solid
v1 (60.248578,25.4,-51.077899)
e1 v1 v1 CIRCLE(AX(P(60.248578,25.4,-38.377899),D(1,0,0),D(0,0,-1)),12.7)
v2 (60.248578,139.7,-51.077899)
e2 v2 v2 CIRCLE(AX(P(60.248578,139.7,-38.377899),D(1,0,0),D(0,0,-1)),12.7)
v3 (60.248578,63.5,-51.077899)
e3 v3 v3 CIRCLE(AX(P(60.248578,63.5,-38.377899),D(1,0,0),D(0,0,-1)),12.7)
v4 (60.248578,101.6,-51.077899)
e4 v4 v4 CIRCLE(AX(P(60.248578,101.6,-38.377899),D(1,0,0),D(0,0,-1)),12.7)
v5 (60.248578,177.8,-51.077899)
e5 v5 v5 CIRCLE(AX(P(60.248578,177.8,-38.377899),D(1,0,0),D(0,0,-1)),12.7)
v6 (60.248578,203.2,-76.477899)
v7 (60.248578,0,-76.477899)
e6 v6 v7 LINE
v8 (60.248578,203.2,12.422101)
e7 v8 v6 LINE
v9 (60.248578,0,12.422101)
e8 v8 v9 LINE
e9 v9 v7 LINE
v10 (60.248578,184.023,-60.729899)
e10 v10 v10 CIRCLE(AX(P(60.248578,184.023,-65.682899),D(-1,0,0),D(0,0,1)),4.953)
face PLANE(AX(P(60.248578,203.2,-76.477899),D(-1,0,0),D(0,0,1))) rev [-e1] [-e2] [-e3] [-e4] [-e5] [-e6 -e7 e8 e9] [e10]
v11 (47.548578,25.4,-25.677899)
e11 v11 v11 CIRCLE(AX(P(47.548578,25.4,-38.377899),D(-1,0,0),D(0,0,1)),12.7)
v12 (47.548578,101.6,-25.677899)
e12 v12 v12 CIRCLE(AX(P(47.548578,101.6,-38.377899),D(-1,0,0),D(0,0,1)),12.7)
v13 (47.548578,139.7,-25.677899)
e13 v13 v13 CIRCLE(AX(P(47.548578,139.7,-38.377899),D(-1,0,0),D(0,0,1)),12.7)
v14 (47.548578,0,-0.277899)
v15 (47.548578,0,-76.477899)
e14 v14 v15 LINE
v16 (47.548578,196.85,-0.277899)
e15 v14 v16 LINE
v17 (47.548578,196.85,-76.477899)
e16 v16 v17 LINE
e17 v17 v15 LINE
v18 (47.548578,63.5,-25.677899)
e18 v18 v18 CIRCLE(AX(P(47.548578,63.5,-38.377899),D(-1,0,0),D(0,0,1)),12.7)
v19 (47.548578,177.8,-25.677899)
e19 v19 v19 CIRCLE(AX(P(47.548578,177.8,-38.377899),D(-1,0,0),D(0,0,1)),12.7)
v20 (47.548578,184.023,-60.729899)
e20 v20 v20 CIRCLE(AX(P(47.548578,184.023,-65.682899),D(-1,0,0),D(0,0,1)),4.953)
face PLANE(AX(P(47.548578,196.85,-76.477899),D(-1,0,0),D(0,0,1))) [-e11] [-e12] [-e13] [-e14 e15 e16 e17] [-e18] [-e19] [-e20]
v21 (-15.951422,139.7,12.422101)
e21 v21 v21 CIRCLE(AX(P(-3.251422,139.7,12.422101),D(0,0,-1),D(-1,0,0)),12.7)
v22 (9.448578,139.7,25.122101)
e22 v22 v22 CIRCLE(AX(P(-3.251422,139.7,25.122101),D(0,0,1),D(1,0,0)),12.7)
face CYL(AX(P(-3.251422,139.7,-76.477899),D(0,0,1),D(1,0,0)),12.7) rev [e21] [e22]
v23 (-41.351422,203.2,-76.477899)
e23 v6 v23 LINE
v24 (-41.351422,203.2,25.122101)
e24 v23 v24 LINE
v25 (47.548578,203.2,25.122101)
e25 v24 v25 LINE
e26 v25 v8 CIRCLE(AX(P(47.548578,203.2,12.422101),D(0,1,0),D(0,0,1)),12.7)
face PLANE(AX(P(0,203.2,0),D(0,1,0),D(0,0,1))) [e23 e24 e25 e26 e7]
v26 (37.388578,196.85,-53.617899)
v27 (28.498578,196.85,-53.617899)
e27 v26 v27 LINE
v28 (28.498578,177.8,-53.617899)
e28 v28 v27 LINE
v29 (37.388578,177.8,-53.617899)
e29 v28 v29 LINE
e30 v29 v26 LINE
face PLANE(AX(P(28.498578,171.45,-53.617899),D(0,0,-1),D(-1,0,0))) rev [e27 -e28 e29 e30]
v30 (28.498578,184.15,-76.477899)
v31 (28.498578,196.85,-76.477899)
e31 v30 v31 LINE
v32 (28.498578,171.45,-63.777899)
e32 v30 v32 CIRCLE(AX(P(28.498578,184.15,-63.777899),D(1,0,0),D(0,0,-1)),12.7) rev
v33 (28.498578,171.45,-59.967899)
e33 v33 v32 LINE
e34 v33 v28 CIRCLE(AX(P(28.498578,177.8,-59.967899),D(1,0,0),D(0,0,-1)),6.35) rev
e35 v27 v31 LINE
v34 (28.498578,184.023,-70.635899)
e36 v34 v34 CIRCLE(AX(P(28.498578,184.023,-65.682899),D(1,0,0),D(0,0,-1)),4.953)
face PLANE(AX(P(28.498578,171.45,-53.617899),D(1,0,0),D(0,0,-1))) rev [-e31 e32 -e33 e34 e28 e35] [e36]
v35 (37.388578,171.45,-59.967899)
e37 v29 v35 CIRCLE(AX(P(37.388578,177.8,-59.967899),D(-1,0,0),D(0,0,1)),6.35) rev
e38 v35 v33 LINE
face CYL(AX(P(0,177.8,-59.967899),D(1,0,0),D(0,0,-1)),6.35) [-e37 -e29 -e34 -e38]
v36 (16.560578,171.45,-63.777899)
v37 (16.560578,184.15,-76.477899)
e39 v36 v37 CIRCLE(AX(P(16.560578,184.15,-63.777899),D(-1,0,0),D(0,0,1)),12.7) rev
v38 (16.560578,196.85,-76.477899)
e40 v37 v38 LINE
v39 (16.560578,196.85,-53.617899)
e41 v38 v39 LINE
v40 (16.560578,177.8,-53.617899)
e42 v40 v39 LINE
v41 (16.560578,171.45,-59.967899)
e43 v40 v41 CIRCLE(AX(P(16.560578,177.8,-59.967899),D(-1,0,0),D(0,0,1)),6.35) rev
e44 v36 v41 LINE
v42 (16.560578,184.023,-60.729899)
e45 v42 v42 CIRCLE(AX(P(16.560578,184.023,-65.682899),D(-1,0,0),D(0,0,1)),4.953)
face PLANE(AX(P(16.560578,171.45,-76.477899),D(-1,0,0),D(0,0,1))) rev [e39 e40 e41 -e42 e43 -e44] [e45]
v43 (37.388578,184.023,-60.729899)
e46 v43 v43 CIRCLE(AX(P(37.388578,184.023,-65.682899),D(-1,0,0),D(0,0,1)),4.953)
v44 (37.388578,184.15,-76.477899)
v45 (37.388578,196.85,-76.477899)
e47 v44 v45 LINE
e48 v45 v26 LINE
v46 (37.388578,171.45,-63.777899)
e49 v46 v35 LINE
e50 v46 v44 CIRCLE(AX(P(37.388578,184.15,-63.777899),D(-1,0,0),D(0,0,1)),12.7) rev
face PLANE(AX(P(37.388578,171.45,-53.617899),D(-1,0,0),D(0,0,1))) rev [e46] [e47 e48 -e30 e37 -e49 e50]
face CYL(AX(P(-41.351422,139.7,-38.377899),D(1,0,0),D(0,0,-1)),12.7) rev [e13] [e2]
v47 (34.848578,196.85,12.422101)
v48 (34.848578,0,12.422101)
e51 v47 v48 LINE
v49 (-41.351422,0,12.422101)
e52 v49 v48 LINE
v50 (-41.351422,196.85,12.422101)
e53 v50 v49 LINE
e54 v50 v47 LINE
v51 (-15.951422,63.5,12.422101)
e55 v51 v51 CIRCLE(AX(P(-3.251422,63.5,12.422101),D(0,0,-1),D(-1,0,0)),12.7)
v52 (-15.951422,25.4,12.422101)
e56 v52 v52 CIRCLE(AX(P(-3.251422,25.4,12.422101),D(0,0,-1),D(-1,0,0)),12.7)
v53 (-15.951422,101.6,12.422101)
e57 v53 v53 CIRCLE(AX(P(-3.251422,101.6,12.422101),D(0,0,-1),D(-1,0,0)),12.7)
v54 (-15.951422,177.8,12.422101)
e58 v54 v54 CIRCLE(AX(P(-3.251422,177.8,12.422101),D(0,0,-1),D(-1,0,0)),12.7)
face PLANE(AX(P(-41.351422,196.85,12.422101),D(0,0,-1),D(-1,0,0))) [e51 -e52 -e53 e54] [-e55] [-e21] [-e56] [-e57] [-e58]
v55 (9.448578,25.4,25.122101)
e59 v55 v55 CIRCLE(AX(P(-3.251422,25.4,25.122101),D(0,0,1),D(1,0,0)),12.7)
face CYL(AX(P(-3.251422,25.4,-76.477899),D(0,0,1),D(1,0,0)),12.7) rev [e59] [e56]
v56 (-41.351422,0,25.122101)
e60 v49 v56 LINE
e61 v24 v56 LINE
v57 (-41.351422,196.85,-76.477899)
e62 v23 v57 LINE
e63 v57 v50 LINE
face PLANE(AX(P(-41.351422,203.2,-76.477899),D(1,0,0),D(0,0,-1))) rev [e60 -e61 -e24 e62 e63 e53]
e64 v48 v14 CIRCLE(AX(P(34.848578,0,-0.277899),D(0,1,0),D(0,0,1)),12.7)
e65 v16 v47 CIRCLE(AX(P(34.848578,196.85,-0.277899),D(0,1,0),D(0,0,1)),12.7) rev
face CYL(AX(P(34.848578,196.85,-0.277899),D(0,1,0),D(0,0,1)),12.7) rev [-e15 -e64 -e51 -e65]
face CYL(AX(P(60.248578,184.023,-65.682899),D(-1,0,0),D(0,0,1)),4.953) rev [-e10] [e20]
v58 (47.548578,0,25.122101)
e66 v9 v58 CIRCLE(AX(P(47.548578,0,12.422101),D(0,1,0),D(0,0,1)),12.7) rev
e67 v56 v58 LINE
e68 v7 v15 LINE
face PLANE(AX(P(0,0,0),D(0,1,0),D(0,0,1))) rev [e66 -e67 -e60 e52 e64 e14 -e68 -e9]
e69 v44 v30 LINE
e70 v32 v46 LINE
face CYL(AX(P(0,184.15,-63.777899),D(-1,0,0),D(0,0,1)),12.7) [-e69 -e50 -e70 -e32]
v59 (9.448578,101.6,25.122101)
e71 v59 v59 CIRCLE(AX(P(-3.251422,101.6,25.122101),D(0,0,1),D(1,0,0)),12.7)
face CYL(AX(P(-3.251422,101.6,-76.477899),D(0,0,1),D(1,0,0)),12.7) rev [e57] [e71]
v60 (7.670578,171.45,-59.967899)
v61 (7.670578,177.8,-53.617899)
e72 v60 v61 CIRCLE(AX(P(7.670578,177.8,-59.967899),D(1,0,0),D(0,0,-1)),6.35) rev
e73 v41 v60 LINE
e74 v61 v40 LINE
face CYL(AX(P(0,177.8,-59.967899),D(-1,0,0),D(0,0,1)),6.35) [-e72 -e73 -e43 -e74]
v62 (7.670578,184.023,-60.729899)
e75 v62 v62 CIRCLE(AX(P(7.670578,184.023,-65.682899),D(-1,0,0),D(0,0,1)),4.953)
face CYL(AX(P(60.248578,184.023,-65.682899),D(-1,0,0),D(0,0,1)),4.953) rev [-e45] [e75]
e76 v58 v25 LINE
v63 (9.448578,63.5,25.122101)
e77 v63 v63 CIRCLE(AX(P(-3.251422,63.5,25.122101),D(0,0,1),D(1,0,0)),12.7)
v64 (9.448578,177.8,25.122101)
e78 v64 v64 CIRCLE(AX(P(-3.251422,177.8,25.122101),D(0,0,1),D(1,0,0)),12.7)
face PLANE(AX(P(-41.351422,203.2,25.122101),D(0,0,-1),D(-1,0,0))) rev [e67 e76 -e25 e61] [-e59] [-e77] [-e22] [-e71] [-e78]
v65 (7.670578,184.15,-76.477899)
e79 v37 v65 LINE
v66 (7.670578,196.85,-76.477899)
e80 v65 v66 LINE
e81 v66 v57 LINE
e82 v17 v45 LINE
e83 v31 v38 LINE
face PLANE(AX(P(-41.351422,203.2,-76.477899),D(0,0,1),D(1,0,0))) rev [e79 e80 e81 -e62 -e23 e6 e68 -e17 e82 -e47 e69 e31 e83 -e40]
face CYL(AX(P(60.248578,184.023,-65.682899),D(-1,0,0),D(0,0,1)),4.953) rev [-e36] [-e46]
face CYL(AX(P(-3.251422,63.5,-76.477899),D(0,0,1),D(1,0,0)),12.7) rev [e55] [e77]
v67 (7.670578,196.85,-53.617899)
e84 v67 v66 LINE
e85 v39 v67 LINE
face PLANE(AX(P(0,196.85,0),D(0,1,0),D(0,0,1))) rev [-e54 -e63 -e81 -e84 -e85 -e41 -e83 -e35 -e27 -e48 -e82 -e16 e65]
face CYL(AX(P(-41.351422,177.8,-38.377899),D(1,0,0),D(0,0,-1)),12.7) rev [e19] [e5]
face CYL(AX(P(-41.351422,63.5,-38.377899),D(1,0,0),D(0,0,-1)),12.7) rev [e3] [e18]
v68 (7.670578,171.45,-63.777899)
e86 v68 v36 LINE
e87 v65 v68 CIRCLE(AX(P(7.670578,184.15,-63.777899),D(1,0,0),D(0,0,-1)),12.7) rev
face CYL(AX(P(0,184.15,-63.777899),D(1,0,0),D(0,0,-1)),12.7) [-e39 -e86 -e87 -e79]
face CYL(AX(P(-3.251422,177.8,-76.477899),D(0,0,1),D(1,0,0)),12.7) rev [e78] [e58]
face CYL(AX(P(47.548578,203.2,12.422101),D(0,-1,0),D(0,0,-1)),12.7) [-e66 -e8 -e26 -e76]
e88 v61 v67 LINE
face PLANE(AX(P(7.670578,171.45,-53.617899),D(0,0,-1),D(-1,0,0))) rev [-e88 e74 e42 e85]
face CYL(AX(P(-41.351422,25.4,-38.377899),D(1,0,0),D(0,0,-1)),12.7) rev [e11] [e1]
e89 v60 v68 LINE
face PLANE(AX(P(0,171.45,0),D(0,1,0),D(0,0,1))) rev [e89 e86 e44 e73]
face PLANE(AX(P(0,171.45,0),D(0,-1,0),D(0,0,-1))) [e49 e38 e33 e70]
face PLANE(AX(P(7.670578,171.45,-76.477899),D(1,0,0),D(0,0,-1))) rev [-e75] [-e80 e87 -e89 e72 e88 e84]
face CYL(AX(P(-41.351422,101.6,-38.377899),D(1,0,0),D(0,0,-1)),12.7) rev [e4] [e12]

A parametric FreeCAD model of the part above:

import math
import FreeCAD as App
import Part
import Sketcher
from FreeCAD import Vector
Q = App.Units.Quantity


def edges_at(feature, points):
    """Names of the edges that pass closest to the given points."""
    edges = feature.Shape.Edges
    near = lambda p: min(range(len(edges)), key=lambda i: edges[i].distToShape(Part.Vertex(*p))[0])
    return sorted({f"Edge{near(p) + 1}" for p in points})

doc = App.newDocument("Part")
body = doc.addObject("PartDesign::Body", "Body")

# Sketch on XZ plane
sketch1 = body.newObject("Sketcher::SketchObject", "Sketch")
sketch1.AttachmentSupport = (doc.getObject("XZ_Plane"), [""])
sketch1.MapMode = "FlatFace"
sketch1.addGeometry(Part.LineSegment(Vector(-41, -76, 0), Vector(-41, 25, 0)), False)
sketch1.addGeometry(Part.LineSegment(Vector(-41, 25, 0), Vector(60, 25, 0)), False)
sketch1.addGeometry(Part.LineSegment(Vector(60, 25, 0), Vector(60, -76, 0)), False)
sketch1.addGeometry(Part.LineSegment(Vector(60, -76, 0), Vector(-41, -76, 0)), False)
sketch1.addConstraint(Sketcher.Constraint("Coincident", 0, 2, 1, 1))
sketch1.addConstraint(Sketcher.Constraint("Coincident", 1, 2, 2, 1))
sketch1.addConstraint(Sketcher.Constraint("Coincident", 2, 2, 3, 1))
sketch1.addConstraint(Sketcher.Constraint("Coincident", 3, 2, 0, 1))
sketch1.addConstraint(Sketcher.Constraint("Vertical", 0))
sketch1.addConstraint(Sketcher.Constraint("Horizontal", 1))
sketch1.addConstraint(Sketcher.Constraint("Vertical", 2))
sketch1.addConstraint(Sketcher.Constraint("Horizontal", 3))
sketch1.addConstraint(Sketcher.Constraint("Equal", 3, 0))
sketch1.addConstraint(Sketcher.Constraint("DistanceX", 1, 1, 1, 2, Q("4 in")))
sketch1.addConstraint(Sketcher.Constraint("DistanceY", -1, 1, 0, 2, Q("25.122101 mm")))
sketch1.addConstraint(Sketcher.Constraint("DistanceX", 0, 2, -1, 1, Q("41.351422 mm")))
pad1 = body.newObject("PartDesign::Pad", "Pad")
pad1.Profile = sketch1
pad1.Length = Q("8 in")
pad1.Reversed = True

# Sketch on XZ plane
sketch2 = body.newObject("Sketcher::SketchObject", "Sketch001")
sketch2.AttachmentSupport = (doc.getObject("XZ_Plane"), [""])
sketch2.MapMode = "FlatFace"
sketch2.AttachmentOffset = App.Placement(Vector(0, 0, -4 * 25.4), App.Rotation())
sketch2.addGeometry(Part.LineSegment(Vector(-41, -76, 0), Vector(-41, 12, 0)), False)
sketch2.addGeometry(Part.LineSegment(Vector(-41, 12, 0), Vector(48, 12, 0)), False)
sketch2.addGeometry(Part.LineSegment(Vector(48, 12, 0), Vector(48, -76, 0)), False)
sketch2.addGeometry(Part.LineSegment(Vector(48, -76, 0), Vector(-41, -76, 0)), False)
sketch2.addConstraint(Sketcher.Constraint("Coincident", 0, 2, 1, 1))
sketch2.addConstraint(Sketcher.Constraint("Coincident", 1, 2, 2, 1))
sketch2.addConstraint(Sketcher.Constraint("Coincident", 2, 2, 3, 1))
sketch2.addConstraint(Sketcher.Constraint("Coincident", 3, 2, 0, 1))
sketch2.addConstraint(Sketcher.Constraint("Vertical", 0))
sketch2.addConstraint(Sketcher.Constraint("Horizontal", 1))
sketch2.addConstraint(Sketcher.Constraint("Vertical", 2))
sketch2.addConstraint(Sketcher.Constraint("Horizontal", 3))
sketch2.addConstraint(Sketcher.Constraint("Equal", 3, 0))
sketch2.addConstraint(Sketcher.Constraint("DistanceX", 1, 1, 1, 2, Q("3.5 in")))
sketch2.addConstraint(Sketcher.Constraint("DistanceY", -1, 1, 0, 2, Q("12.422101 mm")))
sketch2.addConstraint(Sketcher.Constraint("DistanceX", 0, 2, -1, 1, Q("41.351422 mm")))
pocket1 = body.newObject("PartDesign::Pocket", "Pocket")
pocket1.Profile = sketch2
pocket1.Length = Q("7.5 in")
pocket1.Midplane = True
doc.recompute()

fillet = body.newObject("PartDesign::Fillet", "Fillet")
fillet.Base = (pocket1, edges_at(pocket1, [(47.549, 101.6, 12.422), (60.249, 101.6, 25.122)]))
fillet.Radius = Q("0.5 in")

# Sketch on XY plane
sketch3 = body.newObject("Sketcher::SketchObject", "Sketch002")
sketch3.AttachmentSupport = (doc.getObject("XY_Plane"), [""])
sketch3.MapMode = "FlatFace"
sketch3.AttachmentOffset = App.Placement(Vector(0, 0, 25.122101), App.Rotation())
sketch3.addGeometry(Part.Circle(Vector(-3, 178, 0), Vector(0, 0, 1), 13), False)
sketch3.addGeometry(Part.Circle(Vector(-3, 140, 0), Vector(0, 0, 1), 13), False)
sketch3.addGeometry(Part.Circle(Vector(-3, 102, 0), Vector(0, 0, 1), 13), False)
sketch3.addGeometry(Part.Circle(Vector(-3, 64, 0), Vector(0, 0, 1), 13), False)
sketch3.addGeometry(Part.Circle(Vector(-3, 25, 0), Vector(0, 0, 1), 13), False)
sketch3.addConstraint(Sketcher.Constraint("Equal", 0, 1))
sketch3.addConstraint(Sketcher.Constraint("Equal", 1, 2))
sketch3.addConstraint(Sketcher.Constraint("Equal", 2, 3))
sketch3.addConstraint(Sketcher.Constraint("Equal", 3, 4))
sketch3.addConstraint(Sketcher.Constraint("Vertical", 0, 3, 1, 3))
sketch3.addConstraint(Sketcher.Constraint("Vertical", 1, 3, 2, 3))
sketch3.addConstraint(Sketcher.Constraint("Vertical", 2, 3, 3, 3))
sketch3.addConstraint(Sketcher.Constraint("Vertical", 3, 3, 4, 3))
sketch3.addConstraint(Sketcher.Constraint("Diameter", 0, Q("1 in")))
sketch3.addConstraint(Sketcher.Constraint("DistanceY", -1, 1, 0, 3, Q("7 in")))
sketch3.addConstraint(Sketcher.Constraint("DistanceY", -1, 1, 2, 3, Q("4 in")))
sketch3.addConstraint(Sketcher.Constraint("DistanceY", -1, 1, 4, 3, Q("1 in")))
sketch3.addConstraint(Sketcher.Constraint("DistanceY", 3, 3, 1, 3, Q("3 in")))
sketch3.addConstraint(Sketcher.Constraint("DistanceY", -1, 1, 1, 3, Q("5.5 in")))
sketch3.addConstraint(Sketcher.Constraint("DistanceX", 0, 3, -1, 1, Q("3.251422 mm")))
pocket2 = body.newObject("PartDesign::Pocket", "Pocket001")
pocket2.Profile = sketch3
pocket2.Type = "ThroughAll"

# Sketch on YZ plane
sketch4 = body.newObject("Sketcher::SketchObject", "Sketch003")
sketch4.AttachmentSupport = (doc.getObject("YZ_Plane"), [""])
sketch4.MapMode = "FlatFace"
sketch4.AttachmentOffset = App.Placement(Vector(0, 0, 60.248578), App.Rotation())
sketch4.addGeometry(Part.Circle(Vector(178, -38, 0), Vector(0, 0, 1), 13), False)
sketch4.addGeometry(Part.Circle(Vector(140, -38, 0), Vector(0, 0, 1), 13), False)
sketch4.addGeometry(Part.Circle(Vector(102, -38, 0), Vector(0, 0, 1), 13), False)
sketch4.addGeometry(Part.Circle(Vector(64, -38, 0), Vector(0, 0, 1), 13), False)
sketch4.addGeometry(Part.Circle(Vector(25, -38, 0), Vector(0, 0, 1), 13), False)
sketch4.addConstraint(Sketcher.Constraint("Equal", 0, 1))
sketch4.addConstraint(Sketcher.Constraint("Equal", 1, 2))
sketch4.addConstraint(Sketcher.Constraint("Equal", 2, 3))
sketch4.addConstraint(Sketcher.Constraint("Equal", 3, 4))
sketch4.addConstraint(Sketcher.Constraint("Horizontal", 0, 3, 1, 3))
sketch4.addConstraint(Sketcher.Constraint("Horizontal", 1, 3, 2, 3))
sketch4.addConstraint(Sketcher.Constraint("Horizontal", 2, 3, 3, 3))
sketch4.addConstraint(Sketcher.Constraint("Horizontal", 3, 3, 4, 3))
sketch4.addConstraint(Sketcher.Constraint("Diameter", 0, Q("1 in")))
sketch4.addConstraint(Sketcher.Constraint("DistanceX", -1, 1, 0, 3, Q("7 in")))
sketch4.addConstraint(Sketcher.Constraint("DistanceX", -1, 1, 2, 3, Q("4 in")))
sketch4.addConstraint(Sketcher.Constraint("DistanceX", -1, 1, 4, 3, Q("1 in")))
sketch4.addConstraint(Sketcher.Constraint("DistanceX", 3, 3, 1, 3, Q("3 in")))
sketch4.addConstraint(Sketcher.Constraint("DistanceX", -1, 1, 1, 3, Q("5.5 in")))
sketch4.addConstraint(Sketcher.Constraint("DistanceY", 0, 3, -1, 1, Q("38.377899 mm")))
pocket3 = body.newObject("PartDesign::Pocket", "Pocket002")
pocket3.Profile = sketch4
pocket3.Type = "ThroughAll"

# Sketch on XZ plane
sketch5 = body.newObject("Sketcher::SketchObject", "Sketch004")
sketch5.AttachmentSupport = (doc.getObject("XZ_Plane"), [""])
sketch5.MapMode = "FlatFace"
sketch5.AttachmentOffset = App.Placement(Vector(0, 0, -0.25 * 25.4), App.Rotation())
sketch5.addGeometry(Part.LineSegment(Vector(48, -76, 0), Vector(-41, -76, 0)), False)
sketch5.addGeometry(Part.LineSegment(Vector(-41, -76, 0), Vector(-41, 12, 0)), False)
sketch5.addGeometry(Part.LineSegment(Vector(-41, 12, 0), Vector(35, 12, 0)), False)
sketch5.addGeometry(Part.ArcOfCircle(Part.Circle(Vector(35, 0, 0), Vector(0, 0, 1), 13), math.radians(0), math.radians(90)), False)
sketch5.addGeometry(Part.LineSegment(Vector(48, 0, 0), Vector(48, -76, 0)), False)
sketch5.addConstraint(Sketcher.Constraint("Coincident", 0, 2, 1, 1))
sketch5.addConstraint(Sketcher.Constraint("Coincident", 1, 2, 2, 1))
sketch5.addConstraint(Sketcher.Constraint("Tangent", 2, 2, 3, 2))
sketch5.addConstraint(Sketcher.Constraint("Tangent", 3, 1, 4, 1))
sketch5.addConstraint(Sketcher.Constraint("Coincident", 4, 2, 0, 1))
sketch5.addConstraint(Sketcher.Constraint("Horizontal", 0))
sketch5.addConstraint(Sketcher.Constraint("Vertical", 1))
sketch5.addConstraint(Sketcher.Constraint("Horizontal", 2))
sketch5.addConstraint(Sketcher.Constraint("Vertical", 4))
sketch5.addConstraint(Sketcher.Constraint("Equal", 0, 1))
sketch5.addConstraint(Sketcher.Constraint("Radius", 3, Q("0.5 in")))
sketch5.addConstraint(Sketcher.Constraint("DistanceX", 2, 1, 2, 2, Q("3 in")))
sketch5.addConstraint(Sketcher.Constraint("DistanceY", 3, 3, -1, 1, Q("0.277899 mm")))
sketch5.addConstraint(Sketcher.Constraint("DistanceX", -1, 1, 3, 3, Q("34.848578 mm")))
pocket4 = body.newObject("PartDesign::Pocket", "Pocket003")
pocket4.Profile = sketch5
pocket4.Type = "ThroughAll"
pocket4.Reversed = True

# Sketch on XZ plane
sketch6 = body.newObject("Sketcher::SketchObject", "Sketch005")
sketch6.AttachmentSupport = (doc.getObject("XZ_Plane"), [""])
sketch6.MapMode = "FlatFace"
sketch6.AttachmentOffset = App.Placement(Vector(0, 0, -7.75 * 25.4), App.Rotation())
sketch6.addGeometry(Part.LineSegment(Vector(8, -54, 0), Vector(8, -76, 0)), False)
sketch6.addGeometry(Part.LineSegment(Vector(8, -76, 0), Vector(17, -76, 0)), False)
sketch6.addGeometry(Part.LineSegment(Vector(17, -76, 0), Vector(17, -54, 0)), False)
sketch6.addGeometry(Part.LineSegment(Vector(17, -54, 0), Vector(8, -54, 0)), False)
sketch6.addGeometry(Part.LineSegment(Vector(28, -54, 0), Vector(28, -76, 0)), False)
sketch6.addGeometry(Part.LineSegment(Vector(28, -76, 0), Vector(37, -76, 0)), False)
sketch6.addGeometry(Part.LineSegment(Vector(37, -76, 0), Vector(37, -54, 0)), False)
sketch6.addGeometry(Part.LineSegment(Vector(37, -54, 0), Vector(28, -54, 0)), False)
sketch6.addConstraint(Sketcher.Constraint("Coincident", 0, 2, 1, 1))
sketch6.addConstraint(Sketcher.Constraint("Coincident", 1, 2, 2, 1))
sketch6.addConstraint(Sketcher.Constraint("Coincident", 2, 2, 3, 1))
sketch6.addConstraint(Sketcher.Constraint("Coincident", 3, 2, 0, 1))
sketch6.addConstraint(Sketcher.Constraint("Coincident", 4, 2, 5, 1))
sketch6.addConstraint(Sketcher.Constraint("Coincident", 5, 2, 6, 1))
sketch6.addConstraint(Sketcher.Constraint("Coincident", 6, 2, 7, 1))
sketch6.addConstraint(Sketcher.Constraint("Coincident", 7, 2, 4, 1))
sketch6.addConstraint(Sketcher.Constraint("Vertical", 0))
sketch6.addConstraint(Sketcher.Constraint("Horizontal", 1))
sketch6.addConstraint(Sketcher.Constraint("Vertical", 2))
sketch6.addConstraint(Sketcher.Constraint("Horizontal", 3))
sketch6.addConstraint(Sketcher.Constraint("Vertical", 4))
sketch6.addConstraint(Sketcher.Constraint("Horizontal", 5))
sketch6.addConstraint(Sketcher.Constraint("Vertical", 6))
sketch6.addConstraint(Sketcher.Constraint("Horizontal", 7))
sketch6.addConstraint(Sketcher.Constraint("Horizontal", 1, 2, 4, 2))
sketch6.addConstraint(Sketcher.Constraint("Horizontal", 3, 2, 6, 2))
sketch6.addConstraint(Sketcher.Constraint("Equal", 3, 5))
sketch6.addConstraint(Sketcher.Constraint("DistanceY", 0, 2, 0, 1, Q("0.9 in")))
sketch6.addConstraint(Sketcher.Constraint("DistanceX", 1, 1, 1, 2, Q("0.35 in")))
sketch6.addConstraint(Sketcher.Constraint("DistanceX", 1, 2, 4, 2, Q("0.47 in")))
sketch6.addConstraint(Sketcher.Constraint("DistanceY", 0, 2, -1, 1, Q("76.477899 mm")))
sketch6.addConstraint(Sketcher.Constraint("DistanceX", -1, 1, 0, 2, Q("7.670578 mm")))
pad2 = body.newObject("PartDesign::Pad", "Pad001")
pad2.Profile = sketch6
pad2.Length = Q("1 in")
doc.recompute()

fillet2 = body.newObject("PartDesign::Fillet", "Fillet001")
fillet2.Base = (pad2, edges_at(pad2, [(12.116, 171.45, -53.618), (32.944, 171.45, -53.618)]))
fillet2.Radius = Q("0.25 in")
doc.recompute()

fillet3 = body.newObject("PartDesign::Fillet", "Fillet002")
fillet3.Base = (fillet2, edges_at(fillet2, [(12.116, 171.45, -76.478), (32.944, 171.45, -76.478)]))
fillet3.Radius = Q("0.5 in")

# Sketch on YZ plane
sketch7 = body.newObject("Sketcher::SketchObject", "Sketch006")
sketch7.AttachmentSupport = (doc.getObject("YZ_Plane"), [""])
sketch7.MapMode = "FlatFace"
sketch7.AttachmentOffset = App.Placement(Vector(0, 0, 7.670578), App.Rotation())
sketch7.addGeometry(Part.Circle(Vector(184, -65.7, 0), Vector(0, 0, 1), 5), False)
sketch7.addConstraint(Sketcher.Constraint("Diameter", 0, Q("0.39 in")))
sketch7.addConstraint(Sketcher.Constraint("DistanceX", -1, 1, 0, 3, Q("7.245 in")))
sketch7.addConstraint(Sketcher.Constraint("DistanceY", 0, 3, -1, 1, Q("65.682899 mm")))
pocket5 = body.newObject("PartDesign::Pocket", "Pocket004")
pocket5.Profile = sketch7
pocket5.Type = "ThroughAll"
pocket5.Reversed = True

doc.recompute()
